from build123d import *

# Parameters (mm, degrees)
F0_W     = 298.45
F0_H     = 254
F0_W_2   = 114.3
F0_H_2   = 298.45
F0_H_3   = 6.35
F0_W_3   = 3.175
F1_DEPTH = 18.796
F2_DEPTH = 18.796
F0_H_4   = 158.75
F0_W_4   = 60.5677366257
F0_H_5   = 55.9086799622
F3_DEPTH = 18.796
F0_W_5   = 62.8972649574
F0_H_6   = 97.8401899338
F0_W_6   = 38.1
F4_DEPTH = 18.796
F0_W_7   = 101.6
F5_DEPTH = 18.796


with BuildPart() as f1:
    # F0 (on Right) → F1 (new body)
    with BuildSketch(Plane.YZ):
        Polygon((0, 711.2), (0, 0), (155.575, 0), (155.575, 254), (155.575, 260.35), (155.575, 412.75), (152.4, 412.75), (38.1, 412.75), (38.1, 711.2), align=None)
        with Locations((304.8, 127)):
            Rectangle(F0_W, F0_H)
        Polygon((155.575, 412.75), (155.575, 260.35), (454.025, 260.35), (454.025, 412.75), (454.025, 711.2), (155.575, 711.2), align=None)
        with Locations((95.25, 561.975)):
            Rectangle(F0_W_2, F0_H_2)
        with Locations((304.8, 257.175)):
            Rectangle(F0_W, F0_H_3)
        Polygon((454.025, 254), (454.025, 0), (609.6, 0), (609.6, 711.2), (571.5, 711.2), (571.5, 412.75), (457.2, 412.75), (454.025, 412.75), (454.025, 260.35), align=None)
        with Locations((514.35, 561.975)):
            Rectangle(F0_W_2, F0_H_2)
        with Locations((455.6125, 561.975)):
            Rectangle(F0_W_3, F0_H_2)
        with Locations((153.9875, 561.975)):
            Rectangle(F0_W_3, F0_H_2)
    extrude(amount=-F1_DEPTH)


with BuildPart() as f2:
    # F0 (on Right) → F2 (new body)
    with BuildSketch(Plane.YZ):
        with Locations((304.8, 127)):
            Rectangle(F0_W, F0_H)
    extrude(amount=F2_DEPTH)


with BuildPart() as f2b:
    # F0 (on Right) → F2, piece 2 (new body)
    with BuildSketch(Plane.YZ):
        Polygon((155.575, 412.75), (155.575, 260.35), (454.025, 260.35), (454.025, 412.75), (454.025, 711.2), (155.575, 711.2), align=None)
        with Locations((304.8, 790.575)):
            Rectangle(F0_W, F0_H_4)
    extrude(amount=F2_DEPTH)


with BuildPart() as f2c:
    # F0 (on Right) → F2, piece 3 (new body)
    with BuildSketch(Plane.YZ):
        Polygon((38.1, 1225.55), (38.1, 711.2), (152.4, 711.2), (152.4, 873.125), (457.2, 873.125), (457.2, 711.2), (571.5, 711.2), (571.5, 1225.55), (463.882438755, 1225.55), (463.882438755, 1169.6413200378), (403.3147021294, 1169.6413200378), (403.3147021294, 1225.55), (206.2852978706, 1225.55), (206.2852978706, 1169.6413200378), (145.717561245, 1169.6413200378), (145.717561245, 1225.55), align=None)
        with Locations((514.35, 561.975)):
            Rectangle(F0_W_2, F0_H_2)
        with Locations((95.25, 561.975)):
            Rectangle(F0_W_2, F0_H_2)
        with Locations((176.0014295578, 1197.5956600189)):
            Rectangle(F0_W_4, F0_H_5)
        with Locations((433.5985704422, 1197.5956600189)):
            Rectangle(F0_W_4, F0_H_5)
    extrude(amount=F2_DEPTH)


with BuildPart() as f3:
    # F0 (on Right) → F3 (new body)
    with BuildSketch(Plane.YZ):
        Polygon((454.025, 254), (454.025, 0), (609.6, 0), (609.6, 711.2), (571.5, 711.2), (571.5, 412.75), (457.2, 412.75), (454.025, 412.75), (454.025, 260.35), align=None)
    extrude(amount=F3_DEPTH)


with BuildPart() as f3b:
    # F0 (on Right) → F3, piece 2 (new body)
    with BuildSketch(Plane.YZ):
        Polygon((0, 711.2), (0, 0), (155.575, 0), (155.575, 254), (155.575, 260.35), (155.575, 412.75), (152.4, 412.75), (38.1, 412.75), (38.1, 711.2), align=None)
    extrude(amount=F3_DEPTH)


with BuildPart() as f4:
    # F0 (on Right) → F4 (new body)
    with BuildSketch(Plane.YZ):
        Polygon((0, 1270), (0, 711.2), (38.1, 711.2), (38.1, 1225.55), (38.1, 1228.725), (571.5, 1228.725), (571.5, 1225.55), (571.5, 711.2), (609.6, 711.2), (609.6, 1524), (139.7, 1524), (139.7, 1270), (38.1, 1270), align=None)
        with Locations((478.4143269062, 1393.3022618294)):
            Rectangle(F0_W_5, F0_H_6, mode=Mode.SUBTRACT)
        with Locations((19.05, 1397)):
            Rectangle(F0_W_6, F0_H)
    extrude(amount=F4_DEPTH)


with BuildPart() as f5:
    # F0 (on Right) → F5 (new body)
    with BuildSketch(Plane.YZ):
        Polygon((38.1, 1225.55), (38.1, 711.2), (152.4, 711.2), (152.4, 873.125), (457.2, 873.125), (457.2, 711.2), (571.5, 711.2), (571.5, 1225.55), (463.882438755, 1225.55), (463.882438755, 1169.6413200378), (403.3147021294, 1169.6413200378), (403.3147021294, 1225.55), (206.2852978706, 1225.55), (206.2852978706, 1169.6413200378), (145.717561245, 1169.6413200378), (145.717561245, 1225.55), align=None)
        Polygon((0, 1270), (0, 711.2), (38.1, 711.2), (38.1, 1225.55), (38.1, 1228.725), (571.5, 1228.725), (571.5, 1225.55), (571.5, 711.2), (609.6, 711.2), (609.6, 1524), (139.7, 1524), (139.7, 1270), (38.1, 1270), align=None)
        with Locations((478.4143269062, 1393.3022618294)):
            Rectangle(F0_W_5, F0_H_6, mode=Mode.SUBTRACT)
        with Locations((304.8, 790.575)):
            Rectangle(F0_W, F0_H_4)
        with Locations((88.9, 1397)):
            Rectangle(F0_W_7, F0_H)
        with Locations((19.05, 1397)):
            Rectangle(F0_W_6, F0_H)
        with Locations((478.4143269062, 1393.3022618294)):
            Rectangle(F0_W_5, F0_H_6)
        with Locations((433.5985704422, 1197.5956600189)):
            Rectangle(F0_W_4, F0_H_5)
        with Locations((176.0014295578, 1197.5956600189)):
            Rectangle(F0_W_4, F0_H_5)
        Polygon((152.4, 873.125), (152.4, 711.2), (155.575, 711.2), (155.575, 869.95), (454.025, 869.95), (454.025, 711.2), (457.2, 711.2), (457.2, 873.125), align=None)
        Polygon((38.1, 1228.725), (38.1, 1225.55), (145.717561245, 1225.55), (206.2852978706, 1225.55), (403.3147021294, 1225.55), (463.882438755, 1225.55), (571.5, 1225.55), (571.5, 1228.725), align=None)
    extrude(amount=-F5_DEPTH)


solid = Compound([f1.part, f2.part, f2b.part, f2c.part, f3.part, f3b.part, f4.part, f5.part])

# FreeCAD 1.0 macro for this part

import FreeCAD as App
import Part
import Sketcher
from FreeCAD import Vector
Q = App.Units.Quantity


def add_polygon(sketch, points):
    """Adds a closed chain of lines whose ends are joined by coincident constraints."""
    first, n = sketch.GeometryCount, len(points)
    for a, b in zip(points, points[1:] + points[:1]):
        sketch.addGeometry(Part.LineSegment(App.Vector(*a, 0), App.Vector(*b, 0)), False)
    for i in range(n):
        sketch.addConstraint(Sketcher.Constraint("Coincident", first + i, 2, first + (i + 1) % n, 1))

doc = App.newDocument("Part")
body = doc.addObject("PartDesign::Body", "Body")

# Sketch on YZ plane
sketch1 = body.newObject("Sketcher::SketchObject", "Sketch")
sketch1.AttachmentSupport = (doc.getObject("YZ_Plane"), [""])
sketch1.MapMode = "FlatFace"
add_polygon(sketch1, [(0, 711), (0, 0), (610, 0), (610, 711)])  # lines 0-3
sketch1.addConstraint(Sketcher.Constraint("Vertical", 0))
sketch1.addConstraint(Sketcher.Constraint("Horizontal", 1))
sketch1.addConstraint(Sketcher.Constraint("Vertical", 2))
sketch1.addConstraint(Sketcher.Constraint("Horizontal", 3))
sketch1.addConstraint(Sketcher.Constraint("Coincident", 0, 2, -1, 1))
sketch1.addConstraint(Sketcher.Constraint("DistanceX", 1, 1, 1, 2, Q("24 in")))
sketch1.addConstraint(Sketcher.Constraint("DistanceY", 0, 2, 0, 1, Q("28 in")))
pad1 = body.newObject("PartDesign::Pad", "Pad")
pad1.Profile = sketch1
pad1.Length = Q("0.74 in")
pad1.Reversed = True
body2 = doc.addObject("PartDesign::Body", "Body001")

# Sketch on YZ plane
sketch2 = body2.newObject("Sketcher::SketchObject", "Sketch001")
sketch2.AttachmentSupport = (doc.getObject("YZ_Plane001"), [""])
sketch2.MapMode = "FlatFace"
add_polygon(sketch2, [(156, 254), (156, 0), (454, 0), (454, 254)])  # lines 0-3
sketch2.addConstraint(Sketcher.Constraint("Vertical", 0))
sketch2.addConstraint(Sketcher.Constraint("Horizontal", 1))
sketch2.addConstraint(Sketcher.Constraint("Vertical", 2))
sketch2.addConstraint(Sketcher.Constraint("Horizontal", 3))
sketch2.addConstraint(Sketcher.Constraint("PointOnObject", 0, 2, -1))
sketch2.addConstraint(Sketcher.Constraint("DistanceY", 0, 2, 0, 1, Q("10 in")))
sketch2.addConstraint(Sketcher.Constraint("DistanceX", 1, 1, 1, 2, Q("11.75 in")))
sketch2.addConstraint(Sketcher.Constraint("DistanceX", -1, 1, 0, 2, Q("6.125 in")))
pad2 = body2.newObject("PartDesign::Pad", "Pad001")
pad2.Profile = sketch2
pad2.Length = Q("0.74 in")
body3 = doc.addObject("PartDesign::Body", "Body002")

# Sketch on YZ plane
sketch3 = body3.newObject("Sketcher::SketchObject", "Sketch002")
sketch3.AttachmentSupport = (doc.getObject("YZ_Plane002"), [""])
sketch3.MapMode = "FlatFace"
add_polygon(sketch3, [(156, 260), (454, 260), (454, 870), (156, 870)])  # lines 0-3
sketch3.addConstraint(Sketcher.Constraint("Horizontal", 0))
sketch3.addConstraint(Sketcher.Constraint("Vertical", 1))
sketch3.addConstraint(Sketcher.Constraint("Horizontal", 2))
sketch3.addConstraint(Sketcher.Constraint("Vertical", 3))
sketch3.addConstraint(Sketcher.Constraint("DistanceY", 1, 1, 1, 2, Q("24 in")))
sketch3.addConstraint(Sketcher.Constraint("DistanceX", 0, 1, 0, 2, Q("11.75 in")))
sketch3.addConstraint(Sketcher.Constraint("DistanceY", -1, 1, 0, 2, Q("10.25 in")))
sketch3.addConstraint(Sketcher.Constraint("DistanceX", -1, 1, 0, 2, Q("17.875 in")))
pad3 = body3.newObject("PartDesign::Pad", "Pad002")
pad3.Profile = sketch3
pad3.Length = Q("0.74 in")
body4 = doc.addObject("PartDesign::Body", "Body003")

# Sketch on YZ plane
sketch4 = body4.newObject("Sketcher::SketchObject", "Sketch003")
sketch4.AttachmentSupport = (doc.getObject("YZ_Plane003"), [""])
sketch4.MapMode = "FlatFace"
add_polygon(sketch4, [(38, 1226), (38, 413), (152, 413), (152, 873), (457, 873), (457, 413), (572, 413), (572, 1226)])  # lines 0-7
sketch4.addConstraint(Sketcher.Constraint("Vertical", 0))
sketch4.addConstraint(Sketcher.Constraint("Horizontal", 1))
sketch4.addConstraint(Sketcher.Constraint("Vertical", 2))
sketch4.addConstraint(Sketcher.Constraint("Horizontal", 3))
sketch4.addConstraint(Sketcher.Constraint("Vertical", 4))
sketch4.addConstraint(Sketcher.Constraint("Horizontal", 5))
sketch4.addConstraint(Sketcher.Constraint("Vertical", 6))
sketch4.addConstraint(Sketcher.Constraint("Horizontal", 7))
sketch4.addConstraint(Sketcher.Constraint("Horizontal", 1, 2, 4, 2))
sketch4.addConstraint(Sketcher.Constraint("Equal", 1, 5))
sketch4.addConstraint(Sketcher.Constraint("DistanceX", 3, 1, 3, 2, Q("12 in")))
sketch4.addConstraint(Sketcher.Constraint("DistanceX", 7, 2, 7, 1, Q("21 in")))
sketch4.addConstraint(Sketcher.Constraint("DistanceY", 0, 2, 0, 1, Q("32 in")))
sketch4.addConstraint(Sketcher.Constraint("DistanceX", -1, 1, 1, 2, Q("6 in")))
sketch4.addConstraint(Sketcher.Constraint("DistanceY", 2, 1, 2, 2, Q("18.125 in")))
sketch4.addConstraint(Sketcher.Constraint("DistanceY", -1, 1, 0, 2, Q("16.25 in")))
pad4 = body4.newObject("PartDesign::Pad", "Pad003")
pad4.Profile = sketch4
pad4.Length = Q("0.74 in")
body5 = doc.addObject("PartDesign::Body", "Body004")

# Sketch on YZ plane
sketch5 = body5.newObject("Sketcher::SketchObject", "Sketch004")
sketch5.AttachmentSupport = (doc.getObject("YZ_Plane004"), [""])
sketch5.MapMode = "FlatFace"
add_polygon(sketch5, [(454, 0), (610, 0), (610, 711), (572, 711), (572, 413), (454, 413)])  # lines 0-5
sketch5.addConstraint(Sketcher.Constraint("Horizontal", 0))
sketch5.addConstraint(Sketcher.Constraint("Vertical", 1))
sketch5.addConstraint(Sketcher.Constraint("Horizontal", 2))
sketch5.addConstraint(Sketcher.Constraint("Vertical", 3))
sketch5.addConstraint(Sketcher.Constraint("Horizontal", 4))
sketch5.addConstraint(Sketcher.Constraint("Vertical", 5))
sketch5.addConstraint(Sketcher.Constraint("PointOnObject", 0, 2, -1))
sketch5.addConstraint(Sketcher.Constraint("DistanceY", 1, 1, 1, 2, Q("28 in")))
sketch5.addConstraint(Sketcher.Constraint("DistanceX", 2, 2, 2, 1, Q("1.5 in")))
sketch5.addConstraint(Sketcher.Constraint("DistanceX", -1, 1, 0, 2, Q("24 in")))
sketch5.addConstraint(Sketcher.Constraint("DistanceY", 3, 2, 3, 1, Q("11.75 in")))
sketch5.addConstraint(Sketcher.Constraint("DistanceX", 0, 1, 0, 2, Q("6.125 in")))
pad5 = body5.newObject("PartDesign::Pad", "Pad004")
pad5.Profile = sketch5
pad5.Length = Q("0.74 in")
body6 = doc.addObject("PartDesign::Body", "Body005")

# Sketch on YZ plane
sketch6 = body6.newObject("Sketcher::SketchObject", "Sketch005")
sketch6.AttachmentSupport = (doc.getObject("YZ_Plane005"), [""])
sketch6.MapMode = "FlatFace"
add_polygon(sketch6, [(0, 711), (0, 0), (156, 0), (156, 413), (38, 413), (38, 711)])  # lines 0-5
sketch6.addConstraint(Sketcher.Constraint("Vertical", 0))
sketch6.addConstraint(Sketcher.Constraint("Horizontal", 1))
sketch6.addConstraint(Sketcher.Constraint("Vertical", 2))
sketch6.addConstraint(Sketcher.Constraint("Horizontal", 3))
sketch6.addConstraint(Sketcher.Constraint("Vertical", 4))
sketch6.addConstraint(Sketcher.Constraint("Horizontal", 5))
sketch6.addConstraint(Sketcher.Constraint("Coincident", 0, 2, -1, 1))
sketch6.addConstraint(Sketcher.Constraint("DistanceY", 0, 2, 0, 1, Q("28 in")))
sketch6.addConstraint(Sketcher.Constraint("DistanceX", 5, 2, 5, 1, Q("1.5 in")))
sketch6.addConstraint(Sketcher.Constraint("DistanceY", 2, 1, 2, 2, Q("16.25 in")))
sketch6.addConstraint(Sketcher.Constraint("DistanceX", 1, 1, 1, 2, Q("6.125 in")))
pad6 = body6.newObject("PartDesign::Pad", "Pad005")
pad6.Profile = sketch6
pad6.Length = Q("0.74 in")
body7 = doc.addObject("PartDesign::Body", "Body006")

# Sketch on YZ plane
sketch7 = body7.newObject("Sketcher::SketchObject", "Sketch006")
sketch7.AttachmentSupport = (doc.getObject("YZ_Plane006"), [""])
sketch7.MapMode = "FlatFace"
add_polygon(sketch7, [(0, 711), (38, 711), (38, 1229), (572, 1229), (572, 711), (610, 711), (610, 1524), (140, 1524), (140, 1270), (38, 1270), (38, 1524), (0, 1524)])  # lines 0-11
add_polygon(sketch7, [(510, 1344), (447, 1344), (447, 1442), (510, 1442)])  # lines 12-15
sketch7.addConstraint(Sketcher.Constraint("Horizontal", 0))
sketch7.addConstraint(Sketcher.Constraint("Vertical", 1))
sketch7.addConstraint(Sketcher.Constraint("Horizontal", 2))
sketch7.addConstraint(Sketcher.Constraint("Vertical", 3))
sketch7.addConstraint(Sketcher.Constraint("Horizontal", 4))
sketch7.addConstraint(Sketcher.Constraint("Vertical", 5))
sketch7.addConstraint(Sketcher.Constraint("Horizontal", 6))
sketch7.addConstraint(Sketcher.Constraint("Vertical", 7))
sketch7.addConstraint(Sketcher.Constraint("Horizontal", 8))
sketch7.addConstraint(Sketcher.Constraint("Vertical", 9))
sketch7.addConstraint(Sketcher.Constraint("Horizontal", 10))
sketch7.addConstraint(Sketcher.Constraint("Vertical", 11))
sketch7.addConstraint(Sketcher.Constraint("Horizontal", 12))
sketch7.addConstraint(Sketcher.Constraint("Vertical", 13))
sketch7.addConstraint(Sketcher.Constraint("Horizontal", 14))
sketch7.addConstraint(Sketcher.Constraint("Vertical", 15))
sketch7.addConstraint(Sketcher.Constraint("PointOnObject", 10, 2, -2))
sketch7.addConstraint(Sketcher.Constraint("Horizontal", 0, 2, 3, 2))
sketch7.addConstraint(Sketcher.Constraint("Horizontal", 6, 2, 9, 2))
sketch7.addConstraint(Sketcher.Constraint("Vertical", 1, 2, 8, 2))
sketch7.addConstraint(Sketcher.Constraint("Equal", 0, 4))
sketch7.addConstraint(Sketcher.Constraint("DistanceX", 2, 1, 2, 2, Q("21 in")))
sketch7.addConstraint(Sketcher.Constraint("DistanceX", 8, 2, 8, 1, Q("4 in")))
sketch7.addConstraint(Sketcher.Constraint("DistanceY", 5, 1, 5, 2, Q("32 in")))
sketch7.addConstraint(Sketcher.Constraint("DistanceY", 7, 2, 7, 1, Q("10 in")))
sketch7.addConstraint(Sketcher.Constraint("DistanceX", 0, 1, 0, 2, Q("1.5 in")))
sketch7.addConstraint(Sketcher.Constraint("DistanceY", -1, 1, 0, 2, Q("28 in")))
sketch7.addConstraint(Sketcher.Constraint("DistanceY", 1, 1, 1, 2, Q("20.375 in")))
sketch7.addConstraint(Sketcher.Constraint("DistanceY", 13, 1, 13, 2, Q("97.84019 mm")))
sketch7.addConstraint(Sketcher.Constraint("DistanceX", 12, 2, 12, 1, Q("62.897265 mm")))
sketch7.addConstraint(Sketcher.Constraint("DistanceX", -1, 1, 14, 2, Q("509.862959 mm")))
sketch7.addConstraint(Sketcher.Constraint("DistanceY", -1, 1, 12, 2, Q("1344.382167 mm")))
pad7 = body7.newObject("PartDesign::Pad", "Pad006")
pad7.Profile = sketch7
pad7.Length = Q("0.74 in")
body8 = doc.addObject("PartDesign::Body", "Body007")

# Sketch on YZ plane
sketch8 = body8.newObject("Sketcher::SketchObject", "Sketch007")
sketch8.AttachmentSupport = (doc.getObject("YZ_Plane007"), [""])
sketch8.MapMode = "FlatFace"
add_polygon(sketch8, [(610, 711), (610, 1524), (0, 1524), (0, 711)])  # lines 0-3
sketch8.addConstraint(Sketcher.Constraint("Vertical", 0))
sketch8.addConstraint(Sketcher.Constraint("Horizontal", 1))
sketch8.addConstraint(Sketcher.Constraint("Vertical", 2))
sketch8.addConstraint(Sketcher.Constraint("Horizontal", 3))
sketch8.addConstraint(Sketcher.Constraint("PointOnObject", 1, 2, -2))
sketch8.addConstraint(Sketcher.Constraint("DistanceX", 1, 2, 1, 1, Q("24 in")))
sketch8.addConstraint(Sketcher.Constraint("DistanceY", 0, 1, 0, 2, Q("32 in")))
sketch8.addConstraint(Sketcher.Constraint("DistanceY", -1, 1, 0, 2, Q("60 in")))
pad8 = body8.newObject("PartDesign::Pad", "Pad007")
pad8.Profile = sketch8
pad8.Length = Q("0.74 in")
pad8.Reversed = True

doc.recompute()
